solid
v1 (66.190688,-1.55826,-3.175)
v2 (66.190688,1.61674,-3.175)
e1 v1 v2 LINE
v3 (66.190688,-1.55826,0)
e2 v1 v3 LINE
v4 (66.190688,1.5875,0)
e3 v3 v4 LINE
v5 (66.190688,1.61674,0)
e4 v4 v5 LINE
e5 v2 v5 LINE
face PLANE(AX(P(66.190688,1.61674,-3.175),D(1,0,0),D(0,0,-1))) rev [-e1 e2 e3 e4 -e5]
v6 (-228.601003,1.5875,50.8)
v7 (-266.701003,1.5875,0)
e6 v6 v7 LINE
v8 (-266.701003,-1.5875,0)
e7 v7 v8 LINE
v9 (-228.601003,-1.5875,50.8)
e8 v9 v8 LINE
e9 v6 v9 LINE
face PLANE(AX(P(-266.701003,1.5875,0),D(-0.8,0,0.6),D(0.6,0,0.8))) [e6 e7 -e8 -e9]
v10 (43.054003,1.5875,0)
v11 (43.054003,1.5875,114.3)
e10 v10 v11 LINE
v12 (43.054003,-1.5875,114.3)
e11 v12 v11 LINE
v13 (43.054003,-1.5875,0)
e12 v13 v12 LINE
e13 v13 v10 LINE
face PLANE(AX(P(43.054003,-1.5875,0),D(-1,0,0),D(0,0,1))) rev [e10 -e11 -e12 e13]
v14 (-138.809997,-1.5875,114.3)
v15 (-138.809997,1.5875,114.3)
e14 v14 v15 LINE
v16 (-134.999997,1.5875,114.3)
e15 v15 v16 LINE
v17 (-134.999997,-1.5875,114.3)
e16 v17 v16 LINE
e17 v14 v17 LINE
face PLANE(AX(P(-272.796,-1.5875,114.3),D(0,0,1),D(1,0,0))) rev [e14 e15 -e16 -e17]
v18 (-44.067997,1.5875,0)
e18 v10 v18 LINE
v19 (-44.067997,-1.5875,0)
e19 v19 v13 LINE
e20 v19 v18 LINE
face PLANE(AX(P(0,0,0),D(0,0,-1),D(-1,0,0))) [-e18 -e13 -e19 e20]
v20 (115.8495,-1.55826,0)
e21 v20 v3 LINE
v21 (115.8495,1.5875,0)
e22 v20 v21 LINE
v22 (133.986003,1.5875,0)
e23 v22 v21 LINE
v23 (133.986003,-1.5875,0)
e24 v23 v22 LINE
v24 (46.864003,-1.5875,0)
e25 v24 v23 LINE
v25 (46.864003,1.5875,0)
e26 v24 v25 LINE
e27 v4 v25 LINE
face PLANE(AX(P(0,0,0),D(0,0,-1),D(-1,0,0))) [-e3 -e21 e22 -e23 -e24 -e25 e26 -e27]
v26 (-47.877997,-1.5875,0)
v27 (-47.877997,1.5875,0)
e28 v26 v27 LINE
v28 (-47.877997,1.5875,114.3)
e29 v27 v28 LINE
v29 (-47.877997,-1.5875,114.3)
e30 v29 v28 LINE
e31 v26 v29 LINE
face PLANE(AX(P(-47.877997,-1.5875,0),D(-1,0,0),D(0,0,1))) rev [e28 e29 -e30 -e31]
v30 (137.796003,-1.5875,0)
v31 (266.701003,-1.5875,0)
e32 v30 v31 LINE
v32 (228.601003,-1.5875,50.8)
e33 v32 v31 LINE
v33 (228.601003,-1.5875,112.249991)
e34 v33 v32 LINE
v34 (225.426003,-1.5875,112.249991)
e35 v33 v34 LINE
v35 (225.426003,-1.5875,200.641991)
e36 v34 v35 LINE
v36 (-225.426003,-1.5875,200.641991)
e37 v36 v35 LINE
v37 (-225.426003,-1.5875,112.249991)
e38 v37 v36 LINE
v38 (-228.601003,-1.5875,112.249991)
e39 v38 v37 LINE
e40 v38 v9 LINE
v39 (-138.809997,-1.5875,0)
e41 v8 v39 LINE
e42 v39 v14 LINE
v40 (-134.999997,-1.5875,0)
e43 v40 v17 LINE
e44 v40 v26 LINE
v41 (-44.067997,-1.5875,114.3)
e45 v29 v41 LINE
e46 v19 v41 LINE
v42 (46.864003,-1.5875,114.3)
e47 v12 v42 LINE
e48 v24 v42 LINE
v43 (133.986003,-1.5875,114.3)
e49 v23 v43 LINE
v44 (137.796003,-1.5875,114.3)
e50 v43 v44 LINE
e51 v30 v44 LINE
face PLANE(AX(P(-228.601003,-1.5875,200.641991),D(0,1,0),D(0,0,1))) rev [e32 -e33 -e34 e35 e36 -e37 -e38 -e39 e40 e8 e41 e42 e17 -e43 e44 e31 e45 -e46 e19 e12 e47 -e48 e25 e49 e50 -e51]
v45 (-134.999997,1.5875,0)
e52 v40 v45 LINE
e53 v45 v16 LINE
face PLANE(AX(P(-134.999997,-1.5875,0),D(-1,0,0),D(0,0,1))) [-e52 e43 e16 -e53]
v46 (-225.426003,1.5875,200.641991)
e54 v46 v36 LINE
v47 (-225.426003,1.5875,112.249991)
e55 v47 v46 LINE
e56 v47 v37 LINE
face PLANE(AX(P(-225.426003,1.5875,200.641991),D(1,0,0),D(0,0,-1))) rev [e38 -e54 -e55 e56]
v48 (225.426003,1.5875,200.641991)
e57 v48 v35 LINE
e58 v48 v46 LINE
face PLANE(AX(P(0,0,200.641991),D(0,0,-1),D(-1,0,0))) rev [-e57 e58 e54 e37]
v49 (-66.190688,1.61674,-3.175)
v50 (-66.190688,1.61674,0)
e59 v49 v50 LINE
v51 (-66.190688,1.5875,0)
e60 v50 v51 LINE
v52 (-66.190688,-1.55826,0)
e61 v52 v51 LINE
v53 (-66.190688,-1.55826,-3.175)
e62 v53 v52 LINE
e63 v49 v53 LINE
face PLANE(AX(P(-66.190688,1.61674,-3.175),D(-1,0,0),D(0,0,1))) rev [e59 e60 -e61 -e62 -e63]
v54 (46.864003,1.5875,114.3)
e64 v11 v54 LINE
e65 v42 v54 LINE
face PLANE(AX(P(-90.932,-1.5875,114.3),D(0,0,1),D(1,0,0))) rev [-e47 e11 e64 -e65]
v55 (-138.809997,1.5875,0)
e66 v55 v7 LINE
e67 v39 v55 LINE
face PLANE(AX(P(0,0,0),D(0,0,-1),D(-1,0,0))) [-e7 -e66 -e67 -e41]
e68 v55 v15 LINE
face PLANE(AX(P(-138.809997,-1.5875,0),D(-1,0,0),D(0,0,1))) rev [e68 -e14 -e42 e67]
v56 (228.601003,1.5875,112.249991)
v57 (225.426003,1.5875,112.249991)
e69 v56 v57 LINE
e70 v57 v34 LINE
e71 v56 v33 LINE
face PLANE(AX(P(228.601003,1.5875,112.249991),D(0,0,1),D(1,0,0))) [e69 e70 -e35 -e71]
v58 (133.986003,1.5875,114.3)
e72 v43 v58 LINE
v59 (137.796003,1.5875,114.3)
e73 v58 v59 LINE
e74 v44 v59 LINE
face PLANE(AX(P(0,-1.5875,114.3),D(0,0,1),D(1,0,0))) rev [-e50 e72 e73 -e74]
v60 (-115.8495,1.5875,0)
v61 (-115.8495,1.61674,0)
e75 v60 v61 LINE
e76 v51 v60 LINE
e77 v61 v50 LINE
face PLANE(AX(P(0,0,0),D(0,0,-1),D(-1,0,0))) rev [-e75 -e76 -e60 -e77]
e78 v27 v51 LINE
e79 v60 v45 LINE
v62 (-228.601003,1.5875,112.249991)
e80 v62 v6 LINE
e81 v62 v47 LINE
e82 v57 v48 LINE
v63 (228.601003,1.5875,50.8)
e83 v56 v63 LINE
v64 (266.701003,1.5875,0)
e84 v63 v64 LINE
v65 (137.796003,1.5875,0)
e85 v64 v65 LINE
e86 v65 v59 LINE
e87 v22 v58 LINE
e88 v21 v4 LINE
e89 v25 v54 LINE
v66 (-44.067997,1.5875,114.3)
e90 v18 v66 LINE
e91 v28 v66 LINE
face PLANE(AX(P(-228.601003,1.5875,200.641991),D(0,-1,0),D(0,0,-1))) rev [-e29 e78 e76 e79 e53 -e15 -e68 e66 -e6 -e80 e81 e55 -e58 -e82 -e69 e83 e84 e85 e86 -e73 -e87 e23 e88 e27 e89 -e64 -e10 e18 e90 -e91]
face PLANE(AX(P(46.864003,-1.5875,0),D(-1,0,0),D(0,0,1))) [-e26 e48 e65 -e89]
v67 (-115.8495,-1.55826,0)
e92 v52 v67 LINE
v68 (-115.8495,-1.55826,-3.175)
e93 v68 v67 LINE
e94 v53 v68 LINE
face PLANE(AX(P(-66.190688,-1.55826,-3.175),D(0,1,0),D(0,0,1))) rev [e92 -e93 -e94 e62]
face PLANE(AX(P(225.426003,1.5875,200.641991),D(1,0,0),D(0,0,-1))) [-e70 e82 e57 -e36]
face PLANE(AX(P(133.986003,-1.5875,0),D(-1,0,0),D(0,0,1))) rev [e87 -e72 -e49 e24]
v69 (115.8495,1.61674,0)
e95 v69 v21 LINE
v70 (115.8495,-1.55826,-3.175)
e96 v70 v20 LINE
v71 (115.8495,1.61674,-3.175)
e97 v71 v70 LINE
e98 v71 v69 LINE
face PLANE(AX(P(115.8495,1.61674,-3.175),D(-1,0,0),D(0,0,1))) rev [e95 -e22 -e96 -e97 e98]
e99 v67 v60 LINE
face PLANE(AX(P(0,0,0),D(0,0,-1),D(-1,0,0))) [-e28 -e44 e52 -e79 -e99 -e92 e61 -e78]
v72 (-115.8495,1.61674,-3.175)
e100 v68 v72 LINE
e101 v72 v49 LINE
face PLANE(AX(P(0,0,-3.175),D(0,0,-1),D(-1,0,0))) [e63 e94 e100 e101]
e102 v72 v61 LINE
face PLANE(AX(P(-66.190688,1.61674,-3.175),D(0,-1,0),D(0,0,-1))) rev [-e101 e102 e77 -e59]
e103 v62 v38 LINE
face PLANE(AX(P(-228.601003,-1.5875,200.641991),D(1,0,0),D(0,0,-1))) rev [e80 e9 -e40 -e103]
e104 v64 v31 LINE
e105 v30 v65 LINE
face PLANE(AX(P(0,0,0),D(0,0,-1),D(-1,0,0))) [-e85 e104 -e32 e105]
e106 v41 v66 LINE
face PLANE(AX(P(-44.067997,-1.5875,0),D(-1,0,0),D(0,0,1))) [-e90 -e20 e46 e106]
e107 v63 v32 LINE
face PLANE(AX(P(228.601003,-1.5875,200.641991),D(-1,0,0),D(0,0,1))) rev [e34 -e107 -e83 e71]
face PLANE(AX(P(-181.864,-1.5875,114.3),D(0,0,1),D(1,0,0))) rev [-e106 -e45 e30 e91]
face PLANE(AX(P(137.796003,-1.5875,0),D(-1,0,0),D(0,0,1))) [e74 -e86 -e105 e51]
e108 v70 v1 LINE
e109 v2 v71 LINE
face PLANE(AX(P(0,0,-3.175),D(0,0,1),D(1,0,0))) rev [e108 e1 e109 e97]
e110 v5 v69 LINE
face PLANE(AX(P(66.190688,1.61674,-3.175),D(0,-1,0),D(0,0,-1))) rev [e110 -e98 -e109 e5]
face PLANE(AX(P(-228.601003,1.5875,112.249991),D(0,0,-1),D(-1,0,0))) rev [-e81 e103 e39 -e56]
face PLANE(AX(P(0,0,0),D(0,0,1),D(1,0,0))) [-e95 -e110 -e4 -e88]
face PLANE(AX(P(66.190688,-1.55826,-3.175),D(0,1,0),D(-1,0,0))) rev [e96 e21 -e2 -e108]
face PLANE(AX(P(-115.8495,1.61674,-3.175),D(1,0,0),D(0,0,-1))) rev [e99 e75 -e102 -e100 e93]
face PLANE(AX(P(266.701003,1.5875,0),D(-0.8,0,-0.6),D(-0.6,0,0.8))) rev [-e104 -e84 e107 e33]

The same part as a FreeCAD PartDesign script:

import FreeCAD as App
import Part
import Sketcher
from FreeCAD import Vector
Q = App.Units.Quantity

doc = App.newDocument("Part")
body = doc.addObject("PartDesign::Body", "Body")

# Sketch on XY plane
sketch1 = body.newObject("Sketcher::SketchObject", "Sketch")
sketch1.AttachmentSupport = (doc.getObject("XY_Plane"), [""])
sketch1.MapMode = "FlatFace"
sketch1.addGeometry(Part.LineSegment(Vector(-228.6, 1.6, 0), Vector(-228.6, -1.6, 0)), False)
sketch1.addGeometry(Part.LineSegment(Vector(-228.6, -1.6, 0), Vector(228.6, -1.6, 0)), False)
sketch1.addGeometry(Part.LineSegment(Vector(228.6, -1.6, 0), Vector(228.6, 1.6, 0)), False)
sketch1.addGeometry(Part.LineSegment(Vector(228.6, 1.6, 0), Vector(-228.6, 1.6, 0)), False)
sketch1.addConstraint(Sketcher.Constraint("Coincident", 0, 2, 1, 1))
sketch1.addConstraint(Sketcher.Constraint("Coincident", 1, 2, 2, 1))
sketch1.addConstraint(Sketcher.Constraint("Coincident", 2, 2, 3, 1))
sketch1.addConstraint(Sketcher.Constraint("Coincident", 3, 2, 0, 1))
sketch1.addConstraint(Sketcher.Constraint("Vertical", 0))
sketch1.addConstraint(Sketcher.Constraint("Horizontal", 1))
sketch1.addConstraint(Sketcher.Constraint("Vertical", 2))
sketch1.addConstraint(Sketcher.Constraint("Horizontal", 3))
sketch1.addConstraint(Sketcher.Constraint("Symmetric", 0, 2, 2, 2, -1, 1))
sketch1.addConstraint(Sketcher.Constraint("DistanceY", 0, 2, 0, 1, Q("0.125 in")))
sketch1.addConstraint(Sketcher.Constraint("DistanceX", 1, 1, 1, 2, 457.202007))
pad1 = body.newObject("PartDesign::Pad", "Pad")
pad1.Profile = sketch1
pad1.Length = 200.641991

# Sketch on XZ plane
sketch2 = body.newObject("Sketcher::SketchObject", "Sketch001")
sketch2.AttachmentSupport = (doc.getObject("XZ_Plane"), [""])
sketch2.MapMode = "FlatFace"
sketch2.AttachmentOffset = App.Placement(Vector(0, 0, -0.0625 * 25.4), App.Rotation())
sketch2.addGeometry(Part.LineSegment(Vector(134, 0, 0), Vector(134, 114.3, 0)), False)
sketch2.addGeometry(Part.LineSegment(Vector(134, 114.3, 0), Vector(137.8, 114.3, 0)), False)
sketch2.addGeometry(Part.LineSegment(Vector(137.8, 114.3, 0), Vector(137.8, 0, 0)), False)
sketch2.addGeometry(Part.LineSegment(Vector(137.8, 0, 0), Vector(134, 0, 0)), False)
sketch2.addConstraint(Sketcher.Constraint("Coincident", 0, 2, 1, 1))
sketch2.addConstraint(Sketcher.Constraint("Coincident", 1, 2, 2, 1))
sketch2.addConstraint(Sketcher.Constraint("Coincident", 2, 2, 3, 1))
sketch2.addConstraint(Sketcher.Constraint("Coincident", 3, 2, 0, 1))
sketch2.addConstraint(Sketcher.Constraint("Vertical", 0))
sketch2.addConstraint(Sketcher.Constraint("Horizontal", 1))
sketch2.addConstraint(Sketcher.Constraint("Vertical", 2))
sketch2.addConstraint(Sketcher.Constraint("Horizontal", 3))
sketch2.addConstraint(Sketcher.Constraint("PointOnObject", 2, 2, -1))
sketch2.addConstraint(Sketcher.Constraint("DistanceY", 0, 1, 0, 2, Q("4.5 in")))
sketch2.addConstraint(Sketcher.Constraint("DistanceX", 1, 1, 1, 2, Q("0.15 in")))
sketch2.addConstraint(Sketcher.Constraint("DistanceX", -1, 1, 0, 2, 133.986003))
pocket1 = body.newObject("PartDesign::Pocket", "Pocket")
pocket1.Profile = sketch2
pocket1.Type = "ThroughAll"
pocket1.Reversed = True
doc.recompute()

linearpattern = body.newObject("PartDesign::LinearPattern", "LinearPattern")
linearpattern.Originals = [pocket1]
linearpattern.Direction = (doc.getObject("X_Axis"), [""])
linearpattern.Mode = "offset"
linearpattern.Offset = Q("3.58 in")
linearpattern.Occurrences = 4
linearpattern.Reversed = True
body.Tip = linearpattern

# Sketch on XZ plane
sketch3 = body.newObject("Sketcher::SketchObject", "Sketch002")
sketch3.AttachmentSupport = (doc.getObject("XZ_Plane"), [""])
sketch3.MapMode = "FlatFace"
sketch3.AttachmentOffset = App.Placement(Vector(0, 0, 0.0625 * 25.4), App.Rotation())
sketch3.addGeometry(Part.LineSegment(Vector(-267, 0, 0), Vector(-229, 0, 0)), False)
sketch3.addGeometry(Part.LineSegment(Vector(-229, 0, 0), Vector(-229, 51, 0)), False)
sketch3.addGeometry(Part.LineSegment(Vector(-229, 51, 0), Vector(-267, 0, 0)), False)
sketch3.addConstraint(Sketcher.Constraint("Coincident", 0, 2, 1, 1))
sketch3.addConstraint(Sketcher.Constraint("Coincident", 1, 2, 2, 1))
sketch3.addConstraint(Sketcher.Constraint("Coincident", 2, 2, 0, 1))
sketch3.addConstraint(Sketcher.Constraint("Horizontal", 0))
sketch3.addConstraint(Sketcher.Constraint("Vertical", 1))
sketch3.addConstraint(Sketcher.Constraint("PointOnObject", 0, 2, -1))
sketch3.addConstraint(Sketcher.Constraint("DistanceY", 1, 1, 1, 2, Q("2 in")))
sketch3.addConstraint(Sketcher.Constraint("DistanceX", 0, 1, 0, 2, Q("1.5 in")))
sketch3.addConstraint(Sketcher.Constraint("DistanceX", 0, 2, -1, 1, 228.601003))
pad2 = body.newObject("PartDesign::Pad", "Pad001")
pad2.Profile = sketch3
pad2.Length = Q("0.125 in")
pad2.Reversed = True
doc.recompute()

mirrored = body.newObject("PartDesign::Mirrored", "Mirrored")
mirrored.Originals = [pad2]
mirrored.MirrorPlane = (doc.getObject("YZ_Plane"), [""])
body.Tip = mirrored

# Sketch on XZ plane
sketch4 = body.newObject("Sketcher::SketchObject", "Sketch003")
sketch4.AttachmentSupport = (doc.getObject("XZ_Plane"), [""])
sketch4.MapMode = "FlatFace"
sketch4.AttachmentOffset = App.Placement(Vector(0, 0, 0.0625 * 25.4), App.Rotation())
sketch4.addGeometry(Part.LineSegment(Vector(-228.6, 200.6, 0), Vector(-228.6, 112.2, 0)), False)
sketch4.addGeometry(Part.LineSegment(Vector(-228.6, 112.2, 0), Vector(-225.4, 112.2, 0)), False)
sketch4.addGeometry(Part.LineSegment(Vector(-225.4, 112.2, 0), Vector(-225.4, 200.6, 0)), False)
sketch4.addGeometry(Part.LineSegment(Vector(-225.4, 200.6, 0), Vector(-228.6, 200.6, 0)), False)
sketch4.addConstraint(Sketcher.Constraint("Coincident", 0, 2, 1, 1))
sketch4.addConstraint(Sketcher.Constraint("Coincident", 1, 2, 2, 1))
sketch4.addConstraint(Sketcher.Constraint("Coincident", 2, 2, 3, 1))
sketch4.addConstraint(Sketcher.Constraint("Coincident", 3, 2, 0, 1))
sketch4.addConstraint(Sketcher.Constraint("Vertical", 0))
sketch4.addConstraint(Sketcher.Constraint("Horizontal", 1))
sketch4.addConstraint(Sketcher.Constraint("Vertical", 2))
sketch4.addConstraint(Sketcher.Constraint("Horizontal", 3))
sketch4.addConstraint(Sketcher.Constraint("DistanceY", 0, 2, 0, 1, Q("3.48 in")))
sketch4.addConstraint(Sketcher.Constraint("DistanceX", 1, 1, 1, 2, Q("0.125 in")))
sketch4.addConstraint(Sketcher.Constraint("DistanceY", -1, 1, 0, 2, 112.249991))
sketch4.addConstraint(Sketcher.Constraint("DistanceX", 0, 2, -1, 1, 228.601003))
pocket2 = body.newObject("PartDesign::Pocket", "Pocket001")
pocket2.Profile = sketch4
pocket2.Length = Q("0.125 in")
doc.recompute()

mirrored2 = body.newObject("PartDesign::Mirrored", "Mirrored001")
mirrored2.Originals = [pocket2]
mirrored2.MirrorPlane = (doc.getObject("YZ_Plane"), [""])
body.Tip = mirrored2

# Sketch on XY plane
sketch5 = body.newObject("Sketcher::SketchObject", "Sketch004")
sketch5.AttachmentSupport = (doc.getObject("XY_Plane"), [""])
sketch5.MapMode = "FlatFace"
sketch5.addGeometry(Part.LineSegment(Vector(115.8, 1.6, 0), Vector(115.8, -1.6, 0)), False)
sketch5.addGeometry(Part.LineSegment(Vector(115.8, -1.6, 0), Vector(66.2, -1.6, 0)), False)
sketch5.addGeometry(Part.LineSegment(Vector(66.2, -1.6, 0), Vector(66.2, 1.6, 0)), False)
sketch5.addGeometry(Part.LineSegment(Vector(66.2, 1.6, 0), Vector(115.8, 1.6, 0)), False)
sketch5.addGeometry(Part.LineSegment(Vector(-66.2, 1.6, 0), Vector(-66.2, -1.6, 0)), False)
sketch5.addGeometry(Part.LineSegment(Vector(-66.2, -1.6, 0), Vector(-115.8, -1.6, 0)), False)
sketch5.addGeometry(Part.LineSegment(Vector(-115.8, -1.6, 0), Vector(-115.8, 1.6, 0)), False)
sketch5.addGeometry(Part.LineSegment(Vector(-115.8, 1.6, 0), Vector(-66.2, 1.6, 0)), False)
sketch5.addConstraint(Sketcher.Constraint("Coincident", 0, 2, 1, 1))
sketch5.addConstraint(Sketcher.Constraint("Coincident", 1, 2, 2, 1))
sketch5.addConstraint(Sketcher.Constraint("Coincident", 2, 2, 3, 1))
sketch5.addConstraint(Sketcher.Constraint("Coincident", 3, 2, 0, 1))
sketch5.addConstraint(Sketcher.Constraint("Coincident", 4, 2, 5, 1))
sketch5.addConstraint(Sketcher.Constraint("Coincident", 5, 2, 6, 1))
sketch5.addConstraint(Sketcher.Constraint("Coincident", 6, 2, 7, 1))
sketch5.addConstraint(Sketcher.Constraint("Coincident", 7, 2, 4, 1))
sketch5.addConstraint(Sketcher.Constraint("Vertical", 0))
sketch5.addConstraint(Sketcher.Constraint("Horizontal", 1))
sketch5.addConstraint(Sketcher.Constraint("Vertical", 2))
sketch5.addConstraint(Sketcher.Constraint("Horizontal", 3))
sketch5.addConstraint(Sketcher.Constraint("Vertical", 4))
sketch5.addConstraint(Sketcher.Constraint("Horizontal", 5))
sketch5.addConstraint(Sketcher.Constraint("Vertical", 6))
sketch5.addConstraint(Sketcher.Constraint("Horizontal", 7))
sketch5.addConstraint(Sketcher.Constraint("Symmetric", 1, 2, 4, 2, -2))
sketch5.addConstraint(Sketcher.Constraint("Symmetric", 3, 2, 6, 2, -2))
sketch5.addConstraint(Sketcher.Constraint("DistanceY", 0, 2, 0, 1, Q("0.125 in")))
sketch5.addConstraint(Sketcher.Constraint("DistanceX", 1, 2, 1, 1, 49.658812))
sketch5.addConstraint(Sketcher.Constraint("DistanceX", -1, 1, 0, 2, 115.8495))
sketch5.addConstraint(Sketcher.Constraint("DistanceY", 0, 2, -1, 1, 1.55826))
pad3 = body.newObject("PartDesign::Pad", "Pad002")
pad3.Profile = sketch5
pad3.Length = Q("0.125 in")
pad3.Reversed = True

doc.recompute()
